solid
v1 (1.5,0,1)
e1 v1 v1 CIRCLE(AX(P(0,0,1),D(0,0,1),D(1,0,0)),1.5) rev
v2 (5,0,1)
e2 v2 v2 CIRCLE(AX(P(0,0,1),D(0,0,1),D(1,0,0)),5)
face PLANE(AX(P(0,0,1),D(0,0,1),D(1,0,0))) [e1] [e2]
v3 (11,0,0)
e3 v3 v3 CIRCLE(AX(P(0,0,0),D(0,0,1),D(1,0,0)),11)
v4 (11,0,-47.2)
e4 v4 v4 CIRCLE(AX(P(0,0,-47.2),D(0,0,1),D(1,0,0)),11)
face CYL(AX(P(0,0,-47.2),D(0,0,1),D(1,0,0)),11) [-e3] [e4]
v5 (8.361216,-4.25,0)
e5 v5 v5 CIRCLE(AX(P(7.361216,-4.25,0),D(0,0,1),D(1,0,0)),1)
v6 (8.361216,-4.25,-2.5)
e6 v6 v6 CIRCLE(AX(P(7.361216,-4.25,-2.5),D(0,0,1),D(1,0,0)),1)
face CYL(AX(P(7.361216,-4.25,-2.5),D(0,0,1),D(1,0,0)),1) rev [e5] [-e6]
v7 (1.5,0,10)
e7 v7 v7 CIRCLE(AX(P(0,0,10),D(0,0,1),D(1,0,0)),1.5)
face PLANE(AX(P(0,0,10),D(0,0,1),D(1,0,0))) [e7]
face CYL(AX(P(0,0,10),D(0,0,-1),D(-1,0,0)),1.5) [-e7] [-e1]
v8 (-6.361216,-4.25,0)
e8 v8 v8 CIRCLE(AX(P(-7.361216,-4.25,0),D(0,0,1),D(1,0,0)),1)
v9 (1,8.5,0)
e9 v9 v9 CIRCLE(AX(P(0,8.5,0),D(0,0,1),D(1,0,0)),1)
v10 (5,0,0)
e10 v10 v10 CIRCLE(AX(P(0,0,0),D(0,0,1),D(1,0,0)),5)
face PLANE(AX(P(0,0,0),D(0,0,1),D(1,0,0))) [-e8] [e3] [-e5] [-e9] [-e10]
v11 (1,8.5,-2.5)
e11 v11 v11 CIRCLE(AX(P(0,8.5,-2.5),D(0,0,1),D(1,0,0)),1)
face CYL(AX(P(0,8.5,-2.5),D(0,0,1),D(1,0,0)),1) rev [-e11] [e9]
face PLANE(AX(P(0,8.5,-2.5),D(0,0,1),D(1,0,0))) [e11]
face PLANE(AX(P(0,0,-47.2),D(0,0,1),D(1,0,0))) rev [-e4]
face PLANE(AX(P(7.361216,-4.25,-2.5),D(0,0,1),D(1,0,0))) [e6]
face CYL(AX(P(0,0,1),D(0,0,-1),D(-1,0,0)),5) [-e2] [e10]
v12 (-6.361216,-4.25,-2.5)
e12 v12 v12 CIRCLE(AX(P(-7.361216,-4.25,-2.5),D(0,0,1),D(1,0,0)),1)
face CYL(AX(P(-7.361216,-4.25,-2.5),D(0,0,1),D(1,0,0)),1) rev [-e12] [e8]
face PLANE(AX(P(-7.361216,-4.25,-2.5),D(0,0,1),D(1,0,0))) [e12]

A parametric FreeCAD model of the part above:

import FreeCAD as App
import Part
import Sketcher

doc = App.newDocument("Part")
params = doc.addObject("Spreadsheet::Sheet", "Params")
for row, (alias, value) in enumerate([
    ("sketch1_diameter", "22 mm"),
    ("pad1_length", "47.2 mm"),
    ("sketch2_diameter", "10 mm"),
    ("pad2_length", "1 mm"),
    ("sketch3_diameter", "3 mm"),
    ("pad3_length", "10 mm"),
    ("sketch4_diameter", "2 mm"),
    ("pocket1_length", "2.5 mm"),
], start=1):
    params.set(f"A{row}", alias)
    params.set(f"B{row}", "=" + value)
    params.setAlias(f"B{row}", alias)

body = doc.addObject("PartDesign::Body", "Body")

sketch1 = body.newObject("Sketcher::SketchObject", "Sketch")
sketch1.AttachmentSupport = (doc.getObject("XY_Plane"), [""])
sketch1.MapMode = "FlatFace"
sketch1.addGeometry(Part.Circle(App.Vector(0, 0, 0), App.Vector(0, 0, 1), 11), False)
sketch1.addConstraint(Sketcher.Constraint("Coincident", 0, 3, -1, 1))
sketch1.addConstraint(Sketcher.Constraint("Diameter", 0, 22.0))
sketch1.setExpression("Constraints[1]", "Params.sketch1_diameter")
pad1 = body.newObject("PartDesign::Pad", "Pad")
pad1.Profile = sketch1
pad1.setExpression("Length", "Params.pad1_length")
pad1.Reversed = True

sketch2 = body.newObject("Sketcher::SketchObject", "Sketch001")
sketch2.AttachmentSupport = (doc.getObject("XY_Plane"), [""])
sketch2.MapMode = "FlatFace"
sketch2.addGeometry(Part.Circle(App.Vector(0, 0, 0), App.Vector(0, 0, 1), 5), False)
sketch2.addConstraint(Sketcher.Constraint("Coincident", 0, 3, -1, 1))
sketch2.addConstraint(Sketcher.Constraint("Diameter", 0, 10.0))
sketch2.setExpression("Constraints[1]", "Params.sketch2_diameter")
pad2 = body.newObject("PartDesign::Pad", "Pad001")
pad2.Profile = sketch2
pad2.setExpression("Length", "Params.pad2_length")

sketch3 = body.newObject("Sketcher::SketchObject", "Sketch002")
sketch3.AttachmentSupport = (doc.getObject("XY_Plane"), [""])
sketch3.MapMode = "FlatFace"
sketch3.addGeometry(Part.Circle(App.Vector(0, 0, 0), App.Vector(0, 0, 1), 1.5), False)
sketch3.addConstraint(Sketcher.Constraint("Coincident", 0, 3, -1, 1))
sketch3.addConstraint(Sketcher.Constraint("Diameter", 0, 3.0))
sketch3.setExpression("Constraints[1]", "Params.sketch3_diameter")
pad3 = body.newObject("PartDesign::Pad", "Pad002")
pad3.Profile = sketch3
pad3.setExpression("Length", "Params.pad3_length")

sketch4 = body.newObject("Sketcher::SketchObject", "Sketch003")
sketch4.AttachmentSupport = (doc.getObject("XY_Plane"), [""])
sketch4.MapMode = "FlatFace"
sketch4.addGeometry(Part.Circle(App.Vector(0, 8.5, 0), App.Vector(0, 0, 1), 1), False)
sketch4.addGeometry(Part.Circle(App.Vector(7.4, -4.2, 0), App.Vector(0, 0, 1), 1), False)
sketch4.addGeometry(Part.Circle(App.Vector(-7.4, -4.2, 0), App.Vector(0, 0, 1), 1), False)
sketch4.addConstraint(Sketcher.Constraint("Equal", 0, 1))
sketch4.addConstraint(Sketcher.Constraint("Equal", 1, 2))
sketch4.addConstraint(Sketcher.Constraint("Symmetric", 1, 3, 2, 3, -2))
sketch4.addConstraint(Sketcher.Constraint("PointOnObject", 0, 3, -2))
sketch4.addConstraint(Sketcher.Constraint("Diameter", 0, 2.0))
sketch4.addConstraint(Sketcher.Constraint("DistanceY", -1, 1, 0, 3, 8.5))
sketch4.addConstraint(Sketcher.Constraint("DistanceY", 1, 3, -1, 1, 4.25))
sketch4.addConstraint(Sketcher.Constraint("DistanceX", 2, 3, 1, 3, 14.722432))
sketch4.setExpression("Constraints[4]", "Params.sketch4_diameter")
pocket1 = body.newObject("PartDesign::Pocket", "Pocket")
pocket1.Profile = sketch4
pocket1.setExpression("Length", "Params.pocket1_length")

doc.recompute()
